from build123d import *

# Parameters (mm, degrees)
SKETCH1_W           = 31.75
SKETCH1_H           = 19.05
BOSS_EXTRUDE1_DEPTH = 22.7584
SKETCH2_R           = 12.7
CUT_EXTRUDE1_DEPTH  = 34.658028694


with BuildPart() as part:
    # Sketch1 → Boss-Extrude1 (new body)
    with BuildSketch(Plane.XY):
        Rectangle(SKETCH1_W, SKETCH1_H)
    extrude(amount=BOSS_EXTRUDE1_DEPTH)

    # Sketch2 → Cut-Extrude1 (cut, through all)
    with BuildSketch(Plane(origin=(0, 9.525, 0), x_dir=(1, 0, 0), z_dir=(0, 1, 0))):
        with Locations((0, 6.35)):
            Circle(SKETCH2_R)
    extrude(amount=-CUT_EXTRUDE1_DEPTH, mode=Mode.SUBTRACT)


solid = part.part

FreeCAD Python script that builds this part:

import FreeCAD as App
import Part
import Sketcher
Q = App.Units.Quantity


def add_polygon(sketch, points):
    """Adds a closed chain of lines whose ends are joined by coincident constraints."""
    first, n = sketch.GeometryCount, len(points)
    for a, b in zip(points, points[1:] + points[:1]):
        sketch.addGeometry(Part.LineSegment(App.Vector(*a, 0), App.Vector(*b, 0)), False)
    for i in range(n):
        sketch.addConstraint(Sketcher.Constraint("Coincident", first + i, 2, first + (i + 1) % n, 1))

doc = App.newDocument("Part")
body = doc.addObject("PartDesign::Body", "Body")

# Sketch on XY plane
sketch1 = doc.addObject("Sketcher::SketchObject", "Sketch")
body.addObject(sketch1)
sketch1.AttachmentSupport = (doc.XY_Plane, [""])
sketch1.MapMode = "FlatFace"
add_polygon(sketch1, [(-16, 10), (-16, -10), (16, -10), (16, 10)])  # lines 0-3
sketch1.addConstraint([
    Sketcher.Constraint("Vertical", 0),
    Sketcher.Constraint("Horizontal", 1),
    Sketcher.Constraint("Vertical", 2),
    Sketcher.Constraint("Horizontal", 3),
    Sketcher.Constraint("Symmetric", 0, 2, 2, 2, -1, 1),
    Sketcher.Constraint("DistanceX", 1, 1, 1, 2, Q("1.25 in")),
    Sketcher.Constraint("DistanceY", 0, 2, 0, 1, Q("0.75 in")),
])
pad1 = doc.addObject("PartDesign::Pad", "Pad")
body.addObject(pad1)
pad1.Profile = sketch1
pad1.Length = Q("0.896 in")

# Sketch on XZ plane
sketch2 = doc.addObject("Sketcher::SketchObject", "Sketch001")
body.addObject(sketch2)
sketch2.AttachmentSupport = (doc.XZ_Plane, [""])
sketch2.MapMode = "FlatFace"
sketch2.AttachmentOffset = App.Placement(App.Vector(0, 0, -0.375 * 25.4), App.Rotation())
sketch2.addGeometry(Part.Circle(App.Vector(0, -6, 0), App.Vector(0, 0, 1), 13), False)
sketch2.addConstraint([
    Sketcher.Constraint("PointOnObject", 0, 3, -2),
    Sketcher.Constraint("Diameter", 0, Q("1 in")),
    Sketcher.Constraint("DistanceY", 0, 3, -1, 1, Q("0.25 in")),
])
pocket1 = doc.addObject("PartDesign::Pocket", "Pocket")
body.addObject(pocket1)
pocket1.Profile = sketch2
pocket1.Type = "ThroughAll"
pocket1.Reversed = True

doc.recompute()
